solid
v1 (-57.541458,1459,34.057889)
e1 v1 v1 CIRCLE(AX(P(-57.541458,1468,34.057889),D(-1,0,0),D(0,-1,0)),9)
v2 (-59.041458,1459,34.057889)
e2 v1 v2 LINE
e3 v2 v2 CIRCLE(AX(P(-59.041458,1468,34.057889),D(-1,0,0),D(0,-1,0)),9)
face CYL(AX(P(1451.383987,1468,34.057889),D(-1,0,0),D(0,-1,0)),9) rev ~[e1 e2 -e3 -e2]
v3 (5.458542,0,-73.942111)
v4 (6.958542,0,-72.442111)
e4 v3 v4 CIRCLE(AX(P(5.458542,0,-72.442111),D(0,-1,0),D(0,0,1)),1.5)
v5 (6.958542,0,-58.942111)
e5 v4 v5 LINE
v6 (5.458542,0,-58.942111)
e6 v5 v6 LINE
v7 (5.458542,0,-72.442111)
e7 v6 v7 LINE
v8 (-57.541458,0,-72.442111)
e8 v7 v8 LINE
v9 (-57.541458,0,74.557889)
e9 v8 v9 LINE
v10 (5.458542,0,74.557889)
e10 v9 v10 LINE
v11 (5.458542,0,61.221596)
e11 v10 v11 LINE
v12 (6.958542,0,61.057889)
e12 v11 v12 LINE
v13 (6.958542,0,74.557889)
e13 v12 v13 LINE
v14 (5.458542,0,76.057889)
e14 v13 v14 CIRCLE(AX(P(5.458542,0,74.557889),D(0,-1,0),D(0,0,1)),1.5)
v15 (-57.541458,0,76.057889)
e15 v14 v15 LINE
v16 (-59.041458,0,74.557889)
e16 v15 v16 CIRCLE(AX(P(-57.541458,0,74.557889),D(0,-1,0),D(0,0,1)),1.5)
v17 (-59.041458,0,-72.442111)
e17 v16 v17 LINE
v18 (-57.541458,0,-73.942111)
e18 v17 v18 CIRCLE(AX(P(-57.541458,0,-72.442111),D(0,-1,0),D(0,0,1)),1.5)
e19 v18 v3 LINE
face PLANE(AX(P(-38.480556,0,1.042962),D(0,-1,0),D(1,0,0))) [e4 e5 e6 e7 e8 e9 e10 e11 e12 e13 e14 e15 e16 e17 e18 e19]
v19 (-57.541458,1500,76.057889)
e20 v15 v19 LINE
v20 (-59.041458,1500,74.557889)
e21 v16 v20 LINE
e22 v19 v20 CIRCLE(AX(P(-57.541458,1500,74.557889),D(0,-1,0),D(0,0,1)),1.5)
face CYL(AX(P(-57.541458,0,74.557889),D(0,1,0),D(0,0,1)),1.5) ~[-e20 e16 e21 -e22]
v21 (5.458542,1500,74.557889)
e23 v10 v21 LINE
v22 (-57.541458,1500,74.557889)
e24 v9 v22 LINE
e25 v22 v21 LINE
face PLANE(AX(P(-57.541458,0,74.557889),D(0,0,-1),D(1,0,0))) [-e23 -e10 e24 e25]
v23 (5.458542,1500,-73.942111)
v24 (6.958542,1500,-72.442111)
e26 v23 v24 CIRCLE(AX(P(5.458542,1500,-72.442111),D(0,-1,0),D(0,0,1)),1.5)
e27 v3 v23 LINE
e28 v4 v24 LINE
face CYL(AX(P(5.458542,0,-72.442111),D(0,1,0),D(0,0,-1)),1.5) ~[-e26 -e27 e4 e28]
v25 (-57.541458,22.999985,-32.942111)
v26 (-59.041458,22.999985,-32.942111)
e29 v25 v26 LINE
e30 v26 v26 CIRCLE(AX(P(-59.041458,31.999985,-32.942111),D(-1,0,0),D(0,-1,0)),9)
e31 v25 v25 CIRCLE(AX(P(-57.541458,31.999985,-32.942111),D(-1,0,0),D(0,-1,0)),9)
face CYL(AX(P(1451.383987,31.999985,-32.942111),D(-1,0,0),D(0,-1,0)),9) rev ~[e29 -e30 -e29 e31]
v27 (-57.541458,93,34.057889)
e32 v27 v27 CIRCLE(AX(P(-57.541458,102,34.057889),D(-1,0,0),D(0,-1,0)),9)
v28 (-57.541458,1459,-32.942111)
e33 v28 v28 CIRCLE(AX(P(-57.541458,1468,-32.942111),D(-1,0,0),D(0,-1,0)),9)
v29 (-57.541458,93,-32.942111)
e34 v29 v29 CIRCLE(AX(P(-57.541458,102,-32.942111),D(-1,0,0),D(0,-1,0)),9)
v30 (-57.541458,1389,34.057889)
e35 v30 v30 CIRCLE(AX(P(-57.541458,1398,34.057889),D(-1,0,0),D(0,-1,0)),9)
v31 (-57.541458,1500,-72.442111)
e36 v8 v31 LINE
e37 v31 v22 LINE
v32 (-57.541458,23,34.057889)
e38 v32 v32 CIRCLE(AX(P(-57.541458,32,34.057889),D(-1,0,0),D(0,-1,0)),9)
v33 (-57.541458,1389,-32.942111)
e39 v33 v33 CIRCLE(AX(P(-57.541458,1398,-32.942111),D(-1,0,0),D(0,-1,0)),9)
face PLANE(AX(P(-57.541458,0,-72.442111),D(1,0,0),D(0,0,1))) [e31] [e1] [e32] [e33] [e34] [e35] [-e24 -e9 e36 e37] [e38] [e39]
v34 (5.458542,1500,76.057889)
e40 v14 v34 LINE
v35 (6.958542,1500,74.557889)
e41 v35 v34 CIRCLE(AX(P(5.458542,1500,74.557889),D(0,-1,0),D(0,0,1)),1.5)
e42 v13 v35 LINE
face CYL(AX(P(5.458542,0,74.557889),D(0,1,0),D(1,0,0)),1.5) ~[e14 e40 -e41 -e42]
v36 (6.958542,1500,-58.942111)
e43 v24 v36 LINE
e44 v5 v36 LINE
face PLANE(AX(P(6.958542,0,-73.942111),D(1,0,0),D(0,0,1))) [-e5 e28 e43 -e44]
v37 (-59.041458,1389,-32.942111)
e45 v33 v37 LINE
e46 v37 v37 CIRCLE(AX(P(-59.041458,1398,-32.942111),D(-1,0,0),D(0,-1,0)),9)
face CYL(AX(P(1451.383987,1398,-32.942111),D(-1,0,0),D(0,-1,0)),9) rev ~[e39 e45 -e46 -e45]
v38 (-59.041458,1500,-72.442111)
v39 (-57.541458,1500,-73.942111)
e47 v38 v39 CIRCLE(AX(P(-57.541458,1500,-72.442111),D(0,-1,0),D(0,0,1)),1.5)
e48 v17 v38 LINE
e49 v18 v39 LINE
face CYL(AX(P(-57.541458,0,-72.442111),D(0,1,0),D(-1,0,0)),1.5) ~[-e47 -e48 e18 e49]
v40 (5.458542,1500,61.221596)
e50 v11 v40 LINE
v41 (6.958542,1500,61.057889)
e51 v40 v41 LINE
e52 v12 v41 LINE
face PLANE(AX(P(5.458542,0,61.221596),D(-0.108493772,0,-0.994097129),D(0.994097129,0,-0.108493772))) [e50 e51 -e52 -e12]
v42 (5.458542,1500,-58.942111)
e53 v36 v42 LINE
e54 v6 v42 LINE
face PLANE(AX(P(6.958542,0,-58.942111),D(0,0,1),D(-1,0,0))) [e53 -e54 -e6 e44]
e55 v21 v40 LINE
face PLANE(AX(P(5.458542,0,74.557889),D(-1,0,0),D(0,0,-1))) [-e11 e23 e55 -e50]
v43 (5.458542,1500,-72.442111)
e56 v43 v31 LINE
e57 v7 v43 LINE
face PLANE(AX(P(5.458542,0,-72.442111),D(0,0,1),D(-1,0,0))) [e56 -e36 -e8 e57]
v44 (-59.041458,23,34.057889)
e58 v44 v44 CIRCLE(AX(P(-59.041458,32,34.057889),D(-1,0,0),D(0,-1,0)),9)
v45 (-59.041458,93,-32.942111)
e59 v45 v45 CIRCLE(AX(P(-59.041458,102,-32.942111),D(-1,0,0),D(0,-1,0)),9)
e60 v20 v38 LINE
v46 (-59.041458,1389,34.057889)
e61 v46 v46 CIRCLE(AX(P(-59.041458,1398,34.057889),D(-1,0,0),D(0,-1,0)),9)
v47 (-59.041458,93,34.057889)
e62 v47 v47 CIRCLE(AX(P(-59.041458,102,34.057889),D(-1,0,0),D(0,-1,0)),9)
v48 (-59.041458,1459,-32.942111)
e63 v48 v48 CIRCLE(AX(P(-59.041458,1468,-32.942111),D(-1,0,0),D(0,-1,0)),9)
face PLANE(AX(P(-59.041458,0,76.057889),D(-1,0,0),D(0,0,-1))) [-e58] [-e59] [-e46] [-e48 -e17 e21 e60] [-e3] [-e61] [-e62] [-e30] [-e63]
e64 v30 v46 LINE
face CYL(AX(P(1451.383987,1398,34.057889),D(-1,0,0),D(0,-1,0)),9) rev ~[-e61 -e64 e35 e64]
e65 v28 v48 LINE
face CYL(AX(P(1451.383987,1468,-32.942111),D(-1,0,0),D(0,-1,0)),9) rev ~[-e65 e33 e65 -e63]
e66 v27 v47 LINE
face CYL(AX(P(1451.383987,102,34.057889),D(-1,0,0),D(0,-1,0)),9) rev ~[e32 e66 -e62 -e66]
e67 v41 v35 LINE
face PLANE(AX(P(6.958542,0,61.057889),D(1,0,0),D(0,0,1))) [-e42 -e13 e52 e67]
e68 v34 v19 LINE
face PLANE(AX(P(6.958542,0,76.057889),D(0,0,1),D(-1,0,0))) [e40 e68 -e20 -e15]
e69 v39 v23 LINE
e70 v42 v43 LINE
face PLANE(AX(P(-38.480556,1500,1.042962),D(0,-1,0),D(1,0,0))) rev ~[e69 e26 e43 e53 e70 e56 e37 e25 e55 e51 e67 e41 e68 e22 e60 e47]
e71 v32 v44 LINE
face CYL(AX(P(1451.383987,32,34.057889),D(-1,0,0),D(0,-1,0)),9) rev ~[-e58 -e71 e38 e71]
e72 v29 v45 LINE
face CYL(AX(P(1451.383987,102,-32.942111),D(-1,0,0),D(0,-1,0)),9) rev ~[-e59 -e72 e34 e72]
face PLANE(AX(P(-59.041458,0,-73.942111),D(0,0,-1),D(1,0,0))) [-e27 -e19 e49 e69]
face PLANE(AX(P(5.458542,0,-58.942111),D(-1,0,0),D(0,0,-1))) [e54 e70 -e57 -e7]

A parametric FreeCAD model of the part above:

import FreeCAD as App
import Part
import Sketcher


def edges_at(feature, points):
    """Names of the edges that pass closest to the given points."""
    edges = feature.Shape.Edges
    near = lambda p: min(range(len(edges)), key=lambda i: edges[i].distToShape(Part.Vertex(*p))[0])
    return sorted({f"Edge{near(p) + 1}" for p in points})


def add_polygon(sketch, points):
    """Adds a closed chain of lines whose ends are joined by coincident constraints."""
    first, n = sketch.GeometryCount, len(points)
    for a, b in zip(points, points[1:] + points[:1]):
        sketch.addGeometry(Part.LineSegment(App.Vector(*a, 0), App.Vector(*b, 0)), False)
    for i in range(n):
        sketch.addConstraint(Sketcher.Constraint("Coincident", first + i, 2, first + (i + 1) % n, 1))

doc = App.newDocument("Part")
body = doc.addObject("PartDesign::Body", "Body")

# Sketch on XZ plane
sketch1 = body.newObject("Sketcher::SketchObject", "Sketch")
sketch1.AttachmentSupport = (doc.getObject("XZ_Plane"), [""])
sketch1.MapMode = "FlatFace"
add_polygon(sketch1, [(5.5, 61.2), (7, 61.1), (7, 76.1), (-59, 76.1), (-59, -73.9), (7, -73.9), (7, -58.9), (5.5, -58.9), (5.5, -72.4), (-57.5, -72.4), (-57.5, 74.6), (5.5, 74.6)])  # lines 0-11
sketch1.addConstraint([
    Sketcher.Constraint("Vertical", 1),
    Sketcher.Constraint("Horizontal", 2),
    Sketcher.Constraint("Vertical", 3),
    Sketcher.Constraint("Horizontal", 4),
    Sketcher.Constraint("Vertical", 5),
    Sketcher.Constraint("Horizontal", 6),
    Sketcher.Constraint("Vertical", 7),
    Sketcher.Constraint("Horizontal", 8),
    Sketcher.Constraint("Vertical", 9),
    Sketcher.Constraint("Horizontal", 10),
    Sketcher.Constraint("Vertical", 11),
    Sketcher.Constraint("Vertical", 1, 2, 4, 2),
    Sketcher.Constraint("Vertical", 7, 2, 10, 2),
    Sketcher.Constraint("Equal", 1, 5),
    Sketcher.Constraint("DistanceX", 2, 2, 2, 1, 66.0),
    Sketcher.Constraint("DistanceX", 8, 2, 8, 1, 63.0),
    Sketcher.Constraint("DistanceY", 1, 1, 1, 2, 15.0),
    Sketcher.Constraint("DistanceY", 3, 2, 3, 1, 150.0),
    Sketcher.Constraint("DistanceY", 9, 1, 9, 2, 147.0),
    Sketcher.Constraint("DistanceX", 6, 2, 6, 1, 1.5),
    Sketcher.Constraint("DistanceY", 7, 2, 7, 1, 13.5),
    Sketcher.Constraint("DistanceY", 11, 2, 11, 1, 13.336293),
    Sketcher.Constraint("DistanceX", -1, 1, 0, 2, 6.958542),
    Sketcher.Constraint("DistanceY", -1, 1, 0, 2, 61.057889),
])
pad1 = body.newObject("PartDesign::Pad", "Pad")
pad1.Profile = sketch1
pad1.Length = 1500
pad1.Reversed = True
doc.recompute()

fillet = body.newObject("PartDesign::Fillet", "Fillet")
fillet.Base = (pad1, edges_at(pad1, [
    (-59.041, 750, 76.058),
    (6.959, 750, 76.058),
    (6.959, 750, -73.942),
    (-59.041, 750, -73.942),
]))
fillet.Radius = 1.5

# Sketch on YZ plane
sketch2 = body.newObject("Sketcher::SketchObject", "Sketch001")
sketch2.AttachmentSupport = (doc.getObject("YZ_Plane"), [""])
sketch2.MapMode = "FlatFace"
sketch2.AttachmentOffset = App.Placement(App.Vector(0, 0, -57.541458), App.Rotation())
sketch2.addGeometry([
    Part.Circle(App.Vector(32, 34, 0), App.Vector(0, 0, 1), 9),  # 0
    Part.Circle(App.Vector(102, 34, 0), App.Vector(0, 0, 1), 9),  # 1
    Part.Circle(App.Vector(32, -33, 0), App.Vector(0, 0, 1), 9),  # 2
    Part.Circle(App.Vector(102, -33, 0), App.Vector(0, 0, 1), 9),  # 3
    Part.Circle(App.Vector(1468, 34, 0), App.Vector(0, 0, 1), 9),  # 4
    Part.Circle(App.Vector(1398, 34, 0), App.Vector(0, 0, 1), 9),  # 5
    Part.Circle(App.Vector(1398, -33, 0), App.Vector(0, 0, 1), 9),  # 6
    Part.Circle(App.Vector(1468, -33, 0), App.Vector(0, 0, 1), 9),  # 7
], False)
sketch2.addConstraint([
    Sketcher.Constraint("Equal", 0, 1),
    Sketcher.Constraint("Equal", 1, 2),
    Sketcher.Constraint("Equal", 2, 3),
    Sketcher.Constraint("Equal", 3, 4),
    Sketcher.Constraint("Equal", 4, 5),
    Sketcher.Constraint("Equal", 5, 6),
    Sketcher.Constraint("Equal", 6, 7),
    Sketcher.Constraint("Horizontal", 0, 3, 1, 3),
    Sketcher.Constraint("Horizontal", 2, 3, 3, 3),
    Sketcher.Constraint("Horizontal", 1, 3, 4, 3),
    Sketcher.Constraint("Horizontal", 4, 3, 5, 3),
    Sketcher.Constraint("Horizontal", 3, 3, 6, 3),
    Sketcher.Constraint("Horizontal", 6, 3, 7, 3),
    Sketcher.Constraint("Vertical", 1, 3, 3, 3),
    Sketcher.Constraint("Vertical", 5, 3, 6, 3),
    Sketcher.Constraint("Vertical", 4, 3, 7, 3),
    Sketcher.Constraint("Diameter", 0, 18.0),
    Sketcher.Constraint("DistanceX", -1, 1, 0, 3, 32.0),
    Sketcher.Constraint("DistanceX", -1, 1, 1, 3, 102.0),
    Sketcher.Constraint("DistanceX", -1, 1, 4, 3, 1468.0),
    Sketcher.Constraint("DistanceX", -1, 1, 5, 3, 1398.0),
    Sketcher.Constraint("DistanceY", 2, 3, 0, 3, 67.0),
    Sketcher.Constraint("DistanceY", -1, 1, 0, 3, 34.057889),
    Sketcher.Constraint("DistanceX", -1, 1, 2, 3, 31.999985),
])
doc.recompute()
hole = body.newObject("PartDesign::Hole", "Hole")
hole.Profile = sketch2
hole.ThreadType = "None"
hole.Diameter = 18
hole.DepthType = "ThroughAll"

doc.recompute()
